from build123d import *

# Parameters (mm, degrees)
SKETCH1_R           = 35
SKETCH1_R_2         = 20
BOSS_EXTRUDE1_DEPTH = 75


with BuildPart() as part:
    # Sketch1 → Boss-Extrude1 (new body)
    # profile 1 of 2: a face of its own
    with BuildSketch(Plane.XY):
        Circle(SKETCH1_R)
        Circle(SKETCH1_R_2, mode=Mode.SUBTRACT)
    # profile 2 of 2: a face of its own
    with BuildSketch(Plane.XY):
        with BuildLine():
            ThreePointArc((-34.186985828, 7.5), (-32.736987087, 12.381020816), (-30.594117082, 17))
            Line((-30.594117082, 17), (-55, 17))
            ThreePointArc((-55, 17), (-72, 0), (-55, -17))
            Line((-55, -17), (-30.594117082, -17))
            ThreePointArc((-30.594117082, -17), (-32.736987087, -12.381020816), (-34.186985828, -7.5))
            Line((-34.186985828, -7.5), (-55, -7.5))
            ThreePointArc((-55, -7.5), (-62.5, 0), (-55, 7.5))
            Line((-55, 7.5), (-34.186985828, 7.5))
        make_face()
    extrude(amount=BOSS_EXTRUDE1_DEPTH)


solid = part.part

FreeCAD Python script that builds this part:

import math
import FreeCAD as App
import Part
import Sketcher

V = App.Vector
Q = App.Units.Quantity

doc = App.newDocument("Part")
body = doc.addObject("PartDesign::Body", "Body")

# Sketch on XY plane
sketch1 = body.newObject("Sketcher::SketchObject", "Sketch")
sketch1.AttachmentSupport = (doc.getObject("XY_Plane"), [""])
sketch1.MapMode = "FlatFace"
sketch1.addGeometry([
    Part.LineSegment(V(-31, 17, 0), V(-55, 17, 0)),  # 0
    Part.ArcOfCircle(Part.Circle(V(-55, 0, 0), V(0, 0, 1), 17), math.radians(90), math.radians(270)),  # 1
    Part.LineSegment(V(-55, -17, 0), V(-31, -17, 0)),  # 2
    Part.ArcOfCircle(Part.Circle(V(0, 0, 0), V(0, 0, 1), 35), math.radians(-151), math.radians(151)),  # 3
    Part.ArcOfCircle(Part.Circle(V(0, 0, 0), V(0, 0, 1), 35), math.radians(168), math.radians(192)),  # 4
    Part.LineSegment(V(-34, -8, 0), V(-55, -8, 0)),  # 5
    Part.ArcOfCircle(Part.Circle(V(-55, 0, 0), V(0, 0, 1), 8), math.radians(90), math.radians(270)),  # 6
    Part.LineSegment(V(-55, 8, 0), V(-34, 8, 0)),  # 7
    Part.Circle(V(0, 0, 0), V(0, 0, 1), 20),  # 8
], False)
sketch1.addConstraint([
    Sketcher.Constraint("Tangent", 0, 2, 1, 1),
    Sketcher.Constraint("Tangent", 1, 2, 2, 1),
    Sketcher.Constraint("Coincident", 2, 2, 3, 1),
    Sketcher.Constraint("Coincident", 3, 2, 0, 1),
    Sketcher.Constraint("Coincident", 4, 2, 5, 1),
    Sketcher.Constraint("Tangent", 5, 2, 6, 2),
    Sketcher.Constraint("Tangent", 6, 1, 7, 1),
    Sketcher.Constraint("Coincident", 7, 2, 4, 1),
    Sketcher.Constraint("Horizontal", 0),
    Sketcher.Constraint("Horizontal", 2),
    Sketcher.Constraint("Horizontal", 5),
    Sketcher.Constraint("Horizontal", 7),
    Sketcher.Constraint("Coincident", 3, 3, -1, 1),
    Sketcher.Constraint("Coincident", 4, 3, -1, 1),
    Sketcher.Constraint("Coincident", 8, 3, -1, 1),
    Sketcher.Constraint("Coincident", 6, 3, 1, 3),
    Sketcher.Constraint("Equal", 3, 4),
    Sketcher.Constraint("PointOnObject", 1, 3, -1),
    Sketcher.Constraint("Diameter", 8, Q("40 mm")),
    Sketcher.Constraint("Radius", 1, Q("17 mm")),
    Sketcher.Constraint("Radius", 3, Q("35 mm")),
    Sketcher.Constraint("Radius", 6, Q("7.5 mm")),
    Sketcher.Constraint("DistanceX", 1, 3, -1, 1, Q("55 mm")),
])
pad1 = body.newObject("PartDesign::Pad", "Pad")
pad1.Profile = sketch1
pad1.Length = 75

doc.recompute()
